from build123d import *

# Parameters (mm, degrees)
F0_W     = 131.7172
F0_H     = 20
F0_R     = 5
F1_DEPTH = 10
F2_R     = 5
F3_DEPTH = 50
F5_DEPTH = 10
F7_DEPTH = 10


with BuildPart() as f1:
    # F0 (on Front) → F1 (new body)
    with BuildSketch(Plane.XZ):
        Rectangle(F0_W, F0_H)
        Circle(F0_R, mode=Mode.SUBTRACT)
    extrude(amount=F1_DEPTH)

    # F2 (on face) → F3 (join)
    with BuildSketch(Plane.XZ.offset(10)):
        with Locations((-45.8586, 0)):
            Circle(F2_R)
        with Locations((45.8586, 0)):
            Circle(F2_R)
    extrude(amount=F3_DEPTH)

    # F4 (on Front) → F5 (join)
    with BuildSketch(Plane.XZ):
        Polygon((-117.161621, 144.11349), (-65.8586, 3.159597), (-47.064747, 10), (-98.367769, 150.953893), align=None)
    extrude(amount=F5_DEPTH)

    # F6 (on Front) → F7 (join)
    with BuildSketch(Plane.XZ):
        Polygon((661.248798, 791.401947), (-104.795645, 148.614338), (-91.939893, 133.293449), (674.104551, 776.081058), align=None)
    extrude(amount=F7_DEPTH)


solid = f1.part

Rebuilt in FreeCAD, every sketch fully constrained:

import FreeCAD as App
import Part
import Sketcher
from FreeCAD import Vector
Q = App.Units.Quantity


def add_polygon(sketch, points):
    """Adds a closed chain of lines whose ends are joined by coincident constraints."""
    first, n = sketch.GeometryCount, len(points)
    for a, b in zip(points, points[1:] + points[:1]):
        sketch.addGeometry(Part.LineSegment(App.Vector(*a, 0), App.Vector(*b, 0)), False)
    for i in range(n):
        sketch.addConstraint(Sketcher.Constraint("Coincident", first + i, 2, first + (i + 1) % n, 1))

doc = App.newDocument("Part")
body = doc.addObject("PartDesign::Body", "Body")

sketch1 = body.newObject("Sketcher::SketchObject", "Sketch")
sketch1.AttachmentSupport = (doc.getObject("XZ_Plane"), [""])
sketch1.MapMode = "FlatFace"
add_polygon(sketch1, [(-66, 10), (-66, -10), (66, -10), (66, 10)])
sketch1.addGeometry(Part.Circle(Vector(0, 0, 0), Vector(0, 0, 1), 5), False)
sketch1.addConstraint([
    Sketcher.Constraint("Vertical", 0),
    Sketcher.Constraint("Horizontal", 1),
    Sketcher.Constraint("Vertical", 2),
    Sketcher.Constraint("Horizontal", 3),
    Sketcher.Constraint("Coincident", 4, 3, -1, 1),
    Sketcher.Constraint("Symmetric", 0, 2, 2, 2, -1, 1),
    Sketcher.Constraint("Diameter", 4, Q("10 mm")),
    Sketcher.Constraint("DistanceY", 0, 2, 0, 1, Q("20 mm")),
    Sketcher.Constraint("DistanceX", 1, 1, 1, 2, Q("131.7172 mm")),
])
pad1 = body.newObject("PartDesign::Pad", "Pad")
pad1.Profile = sketch1
pad1.Length = 10

sketch2 = body.newObject("Sketcher::SketchObject", "Sketch001")
sketch2.AttachmentSupport = (doc.getObject("XZ_Plane"), [""])
sketch2.MapMode = "FlatFace"
sketch2.AttachmentOffset = App.Placement(Vector(0, 0, 10), App.Rotation())
sketch2.addGeometry([
    Part.Circle(Vector(-46, 0, 0), Vector(0, 0, 1), 5),
    Part.Circle(Vector(46, 0, 0), Vector(0, 0, 1), 5),
], False)
sketch2.addConstraint([
    Sketcher.Constraint("Equal", 0, 1),
    Sketcher.Constraint("Symmetric", 0, 3, 1, 3, -1, 1),
    Sketcher.Constraint("PointOnObject", 0, 3, -1),
    Sketcher.Constraint("Diameter", 0, Q("10 mm")),
    Sketcher.Constraint("DistanceX", 0, 3, -1, 1, Q("45.8586 mm")),
])
pad2 = body.newObject("PartDesign::Pad", "Pad001")
pad2.Profile = sketch2
pad2.Length = 50

sketch3 = body.newObject("Sketcher::SketchObject", "Sketch002")
sketch3.AttachmentSupport = (doc.getObject("XZ_Plane"), [""])
sketch3.MapMode = "FlatFace"
add_polygon(sketch3, [(-117, 144), (-66, 3), (-47, 10), (-98, 151)])
sketch3.addConstraint([
    Sketcher.Constraint("Perpendicular", 0, 1),
    Sketcher.Constraint("Perpendicular", 1, 2),
    Sketcher.Constraint("Perpendicular", 2, 3),
    Sketcher.Constraint("Angle", 0, Q("-70 deg")),
    Sketcher.Constraint("Distance", 0, Q("150 mm")),
    Sketcher.Constraint("Distance", 1, Q("20.000001 mm")),
    Sketcher.Constraint("DistanceY", -1, 1, 1, 2, Q("10 mm")),
    Sketcher.Constraint("DistanceX", 0, 2, -1, 1, Q("65.8586 mm")),
])
pad3 = body.newObject("PartDesign::Pad", "Pad002")
pad3.Profile = sketch3
pad3.Length = 10

sketch4 = body.newObject("Sketcher::SketchObject", "Sketch003")
sketch4.AttachmentSupport = (doc.getObject("XZ_Plane"), [""])
sketch4.MapMode = "FlatFace"
add_polygon(sketch4, [(661, 791), (-105, 149), (-92, 133), (674, 776)])
sketch4.addConstraint([
    Sketcher.Constraint("Perpendicular", 0, 1),
    Sketcher.Constraint("Perpendicular", 1, 2),
    Sketcher.Constraint("Perpendicular", 2, 3),
    Sketcher.Constraint("Angle", 0, Q("-140 deg")),
    Sketcher.Constraint("Distance", 0, Q("999.999999 mm")),
    Sketcher.Constraint("Distance", 1, Q("20 mm")),
    Sketcher.Constraint("DistanceX", -1, 1, 3, 2, Q("661.248798 mm")),
    Sketcher.Constraint("DistanceY", -1, 1, 0, 2, Q("148.614338 mm")),
])
pad4 = body.newObject("PartDesign::Pad", "Pad003")
pad4.Profile = sketch4
pad4.Length = 10

doc.recompute()
